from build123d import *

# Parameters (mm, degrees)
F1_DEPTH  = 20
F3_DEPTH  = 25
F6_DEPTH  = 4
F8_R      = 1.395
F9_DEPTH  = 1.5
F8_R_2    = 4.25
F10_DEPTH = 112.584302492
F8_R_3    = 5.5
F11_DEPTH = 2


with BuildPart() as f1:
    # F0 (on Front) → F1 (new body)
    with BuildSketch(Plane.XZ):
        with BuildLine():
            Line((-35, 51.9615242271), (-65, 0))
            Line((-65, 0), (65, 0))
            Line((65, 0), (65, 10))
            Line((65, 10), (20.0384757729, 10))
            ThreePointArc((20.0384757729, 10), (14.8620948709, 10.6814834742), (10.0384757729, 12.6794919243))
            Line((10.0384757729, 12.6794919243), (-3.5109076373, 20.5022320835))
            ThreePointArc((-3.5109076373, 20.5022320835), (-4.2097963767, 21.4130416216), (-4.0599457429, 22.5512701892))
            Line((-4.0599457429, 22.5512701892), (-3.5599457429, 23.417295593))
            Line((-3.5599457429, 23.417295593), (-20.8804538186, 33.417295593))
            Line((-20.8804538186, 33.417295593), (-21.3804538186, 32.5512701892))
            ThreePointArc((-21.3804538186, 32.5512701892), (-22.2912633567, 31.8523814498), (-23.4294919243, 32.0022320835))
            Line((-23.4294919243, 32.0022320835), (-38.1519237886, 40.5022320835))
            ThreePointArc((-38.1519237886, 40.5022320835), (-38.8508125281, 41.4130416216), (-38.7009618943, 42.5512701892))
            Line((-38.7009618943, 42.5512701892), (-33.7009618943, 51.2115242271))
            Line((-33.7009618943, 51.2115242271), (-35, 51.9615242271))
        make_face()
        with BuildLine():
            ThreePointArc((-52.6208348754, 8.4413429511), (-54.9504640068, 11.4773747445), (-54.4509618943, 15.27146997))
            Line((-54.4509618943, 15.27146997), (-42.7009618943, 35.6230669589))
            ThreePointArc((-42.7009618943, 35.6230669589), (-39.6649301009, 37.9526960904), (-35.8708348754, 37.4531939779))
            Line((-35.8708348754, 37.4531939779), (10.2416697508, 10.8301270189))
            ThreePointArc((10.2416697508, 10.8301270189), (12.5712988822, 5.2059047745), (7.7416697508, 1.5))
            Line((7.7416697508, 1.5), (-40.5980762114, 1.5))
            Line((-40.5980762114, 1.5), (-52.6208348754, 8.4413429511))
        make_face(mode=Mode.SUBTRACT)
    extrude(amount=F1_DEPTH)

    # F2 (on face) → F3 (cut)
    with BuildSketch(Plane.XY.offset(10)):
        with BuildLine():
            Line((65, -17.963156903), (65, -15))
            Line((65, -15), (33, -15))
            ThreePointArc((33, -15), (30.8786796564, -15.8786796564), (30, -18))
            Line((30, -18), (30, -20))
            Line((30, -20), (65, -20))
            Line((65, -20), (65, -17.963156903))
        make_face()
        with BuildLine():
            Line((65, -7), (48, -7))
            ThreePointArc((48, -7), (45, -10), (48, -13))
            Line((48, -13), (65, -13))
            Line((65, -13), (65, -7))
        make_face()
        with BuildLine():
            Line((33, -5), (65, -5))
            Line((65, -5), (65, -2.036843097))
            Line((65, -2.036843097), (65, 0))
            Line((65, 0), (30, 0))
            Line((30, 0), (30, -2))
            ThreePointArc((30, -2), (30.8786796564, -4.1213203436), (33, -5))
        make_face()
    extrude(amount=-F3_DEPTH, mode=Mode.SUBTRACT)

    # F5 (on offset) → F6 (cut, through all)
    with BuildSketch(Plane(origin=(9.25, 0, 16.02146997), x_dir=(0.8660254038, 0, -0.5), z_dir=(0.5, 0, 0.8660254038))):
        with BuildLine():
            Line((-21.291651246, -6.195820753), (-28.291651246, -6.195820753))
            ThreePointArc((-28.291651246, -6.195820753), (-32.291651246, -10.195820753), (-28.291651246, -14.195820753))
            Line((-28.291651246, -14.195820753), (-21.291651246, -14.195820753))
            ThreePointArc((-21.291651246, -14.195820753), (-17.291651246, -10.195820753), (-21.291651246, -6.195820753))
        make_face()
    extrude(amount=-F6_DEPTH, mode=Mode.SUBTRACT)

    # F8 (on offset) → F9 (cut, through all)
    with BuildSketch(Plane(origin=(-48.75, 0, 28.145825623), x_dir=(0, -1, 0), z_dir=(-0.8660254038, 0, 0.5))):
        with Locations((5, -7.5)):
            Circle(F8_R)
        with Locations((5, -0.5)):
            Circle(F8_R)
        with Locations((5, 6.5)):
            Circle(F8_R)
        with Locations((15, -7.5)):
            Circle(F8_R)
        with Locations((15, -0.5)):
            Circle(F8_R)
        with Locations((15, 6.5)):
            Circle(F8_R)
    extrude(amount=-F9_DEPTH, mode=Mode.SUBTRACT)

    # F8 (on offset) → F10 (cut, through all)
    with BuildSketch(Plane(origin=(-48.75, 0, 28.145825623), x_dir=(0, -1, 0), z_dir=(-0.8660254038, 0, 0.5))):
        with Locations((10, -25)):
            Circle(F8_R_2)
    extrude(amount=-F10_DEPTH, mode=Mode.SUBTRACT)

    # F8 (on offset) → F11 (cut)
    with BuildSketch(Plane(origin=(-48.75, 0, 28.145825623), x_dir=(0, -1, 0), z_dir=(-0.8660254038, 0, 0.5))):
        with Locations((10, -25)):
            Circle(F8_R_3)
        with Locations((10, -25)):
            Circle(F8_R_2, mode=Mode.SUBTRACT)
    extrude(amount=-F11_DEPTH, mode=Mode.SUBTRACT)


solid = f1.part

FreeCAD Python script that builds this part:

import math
import FreeCAD as App
import Part
import Sketcher
from FreeCAD import Vector
Q = App.Units.Quantity

doc = App.newDocument("Part")
params = doc.addObject("Spreadsheet::Sheet", "Params")
for row, (alias, value) in enumerate([
    ("sketch1_radius", "20 mm"),
    ("sketch1_radius2", "5 mm"),
    ("sketch1_radius3", "1.5 mm"),
    ("sketch1_width", "130 mm"),
    ("sketch1_height", "10 mm"),
    ("pad1_length", "20 mm"),
    ("sketch2_radius", "3 mm"),
    ("sketch2_width", "32 mm"),
    ("sketch2_width2", "17 mm"),
    ("sketch2_height", "2 mm"),
    ("pocket1_length", "25 mm"),
    ("sketch3_radius", "4 mm"),
    ("sketch3_width", "7 mm"),
    ("pocket2_length", "4 mm"),
    ("sketch4_diameter", "2.79 mm"),
    ("pocket3_length", "1.5 mm"),
    ("sketch5_diameter", "8.5 mm"),
    ("sketch6_diameter", "11 mm"),
    ("sketch6_diameter2", "8.5 mm"),
    ("pocket5_length", "2 mm"),
], start=1):
    params.set(f"A{row}", alias)
    params.set(f"B{row}", "=" + value)
    params.setAlias(f"B{row}", alias)

body = doc.addObject("PartDesign::Body", "Body")

# Sketch on XZ plane
sketch1 = body.newObject("Sketcher::SketchObject", "Sketch")
sketch1.AttachmentSupport = (doc.getObject("XZ_Plane"), [""])
sketch1.MapMode = "FlatFace"
sketch1.addGeometry(Part.LineSegment(Vector(-35, 52, 0), Vector(-65, 0, 0)), False)
sketch1.addGeometry(Part.LineSegment(Vector(-65, 0, 0), Vector(65, 0, 0)), False)
sketch1.addGeometry(Part.LineSegment(Vector(65, 0, 0), Vector(65, 10, 0)), False)
sketch1.addGeometry(Part.LineSegment(Vector(65, 10, 0), Vector(20, 10, 0)), False)
sketch1.addGeometry(Part.ArcOfCircle(Part.Circle(Vector(20, 30, 0), Vector(0, 0, 1), 20), math.radians(-120), math.radians(-90)), False)
sketch1.addGeometry(Part.LineSegment(Vector(10, 12.7, 0), Vector(-3.5, 20.5, 0)), False)
sketch1.addGeometry(Part.ArcOfCircle(Part.Circle(Vector(-2.8, 21.8, 0), Vector(0, 0, 1), 1.5), math.radians(150), math.radians(240)), False)
sketch1.addGeometry(Part.LineSegment(Vector(-4.1, 22.6, 0), Vector(-3.6, 23.4, 0)), False)
sketch1.addGeometry(Part.LineSegment(Vector(-3.6, 23.4, 0), Vector(-20.9, 33.4, 0)), False)
sketch1.addGeometry(Part.LineSegment(Vector(-20.9, 33.4, 0), Vector(-21.4, 32.6, 0)), False)
sketch1.addGeometry(Part.ArcOfCircle(Part.Circle(Vector(-22.7, 33.3, 0), Vector(0, 0, 1), 1.5), math.radians(-120), math.radians(-30)), False)
sketch1.addGeometry(Part.LineSegment(Vector(-23.4, 32, 0), Vector(-38.2, 40.5, 0)), False)
sketch1.addGeometry(Part.ArcOfCircle(Part.Circle(Vector(-37.4, 41.8, 0), Vector(0, 0, 1), 1.5), math.radians(150), math.radians(240)), False)
sketch1.addGeometry(Part.LineSegment(Vector(-38.7, 42.6, 0), Vector(-33.7, 51.2, 0)), False)
sketch1.addGeometry(Part.LineSegment(Vector(-33.7, 51.2, 0), Vector(-35, 52, 0)), False)
sketch1.addGeometry(Part.LineSegment(Vector(-40.6, 1.5, 0), Vector(-52.6, 8.4, 0)), False)
sketch1.addGeometry(Part.ArcOfCircle(Part.Circle(Vector(-50.1, 12.8, 0), Vector(0, 0, 1), 5), math.radians(150), math.radians(240)), False)
sketch1.addGeometry(Part.LineSegment(Vector(-54.5, 15.3, 0), Vector(-42.7, 35.6, 0)), False)
sketch1.addGeometry(Part.ArcOfCircle(Part.Circle(Vector(-38.4, 33.1, 0), Vector(0, 0, 1), 5), math.radians(60), math.radians(150)), False)
sketch1.addGeometry(Part.LineSegment(Vector(-35.9, 37.5, 0), Vector(10.2, 10.8, 0)), False)
sketch1.addGeometry(Part.ArcOfCircle(Part.Circle(Vector(7.7, 6.5, 0), Vector(0, 0, 1), 5), math.radians(-90), math.radians(60)), False)
sketch1.addGeometry(Part.LineSegment(Vector(7.7, 1.5, 0), Vector(-40.6, 1.5, 0)), False)
sketch1.addConstraint(Sketcher.Constraint("Coincident", 0, 2, 1, 1))
sketch1.addConstraint(Sketcher.Constraint("Coincident", 1, 2, 2, 1))
sketch1.addConstraint(Sketcher.Constraint("Coincident", 2, 2, 3, 1))
sketch1.addConstraint(Sketcher.Constraint("Tangent", 3, 2, 4, 2))
sketch1.addConstraint(Sketcher.Constraint("Tangent", 4, 1, 5, 1))
sketch1.addConstraint(Sketcher.Constraint("Tangent", 5, 2, 6, 2))
sketch1.addConstraint(Sketcher.Constraint("Tangent", 6, 1, 7, 1))
sketch1.addConstraint(Sketcher.Constraint("Coincident", 7, 2, 8, 1))
sketch1.addConstraint(Sketcher.Constraint("Coincident", 8, 2, 9, 1))
sketch1.addConstraint(Sketcher.Constraint("Tangent", 9, 2, 10, 2))
sketch1.addConstraint(Sketcher.Constraint("Tangent", 10, 1, 11, 1))
sketch1.addConstraint(Sketcher.Constraint("Tangent", 11, 2, 12, 2))
sketch1.addConstraint(Sketcher.Constraint("Tangent", 12, 1, 13, 1))
sketch1.addConstraint(Sketcher.Constraint("Coincident", 13, 2, 14, 1))
sketch1.addConstraint(Sketcher.Constraint("Coincident", 14, 2, 0, 1))
sketch1.addConstraint(Sketcher.Constraint("Tangent", 15, 2, 16, 2))
sketch1.addConstraint(Sketcher.Constraint("Tangent", 16, 1, 17, 1))
sketch1.addConstraint(Sketcher.Constraint("Tangent", 17, 2, 18, 2))
sketch1.addConstraint(Sketcher.Constraint("Tangent", 18, 1, 19, 1))
sketch1.addConstraint(Sketcher.Constraint("Tangent", 19, 2, 20, 2))
sketch1.addConstraint(Sketcher.Constraint("Tangent", 20, 1, 21, 1))
sketch1.addConstraint(Sketcher.Constraint("Coincident", 21, 2, 15, 1))
sketch1.addConstraint(Sketcher.Constraint("Horizontal", 1))
sketch1.addConstraint(Sketcher.Constraint("Vertical", 2))
sketch1.addConstraint(Sketcher.Constraint("Horizontal", 3))
sketch1.addConstraint(Sketcher.Constraint("Horizontal", 21))
sketch1.addConstraint(Sketcher.Constraint("Equal", 6, 10))
sketch1.addConstraint(Sketcher.Constraint("Equal", 10, 12))
sketch1.addConstraint(Sketcher.Constraint("Equal", 16, 18))
sketch1.addConstraint(Sketcher.Constraint("Equal", 18, 20))
sketch1.addConstraint(Sketcher.Constraint("Symmetric", 0, 2, 1, 2, -1, 1))
sketch1.addConstraint(Sketcher.Constraint("Perpendicular", 0, 5))
sketch1.addConstraint(Sketcher.Constraint("Perpendicular", 5, 7))
sketch1.addConstraint(Sketcher.Constraint("Perpendicular", 7, 8))
sketch1.addConstraint(Sketcher.Constraint("Perpendicular", 8, 9))
sketch1.addConstraint(Sketcher.Constraint("Perpendicular", 9, 11))
sketch1.addConstraint(Sketcher.Constraint("Perpendicular", 11, 13))
sketch1.addConstraint(Sketcher.Constraint("Perpendicular", 13, 14))
sketch1.addConstraint(Sketcher.Constraint("Parallel", 14, 15))
sketch1.addConstraint(Sketcher.Constraint("Perpendicular", 15, 17))
sketch1.addConstraint(Sketcher.Constraint("Perpendicular", 17, 19))
sketch1.addConstraint(Sketcher.Constraint("Equal", 7, 9))
sketch1.addConstraint(Sketcher.Constraint("Radius", 4, Q("20 mm")))
sketch1.addConstraint(Sketcher.Constraint("Radius", 16, Q("5 mm")))
sketch1.addConstraint(Sketcher.Constraint("Radius", 6, Q("1.5 mm")))
sketch1.addConstraint(Sketcher.Constraint("DistanceX", 1, 1, 1, 2, Q("130 mm")))
sketch1.addConstraint(Sketcher.Constraint("DistanceY", 2, 1, 2, 2, Q("10 mm")))
sketch1.addConstraint(Sketcher.Constraint("Angle", 0, Q("-120 deg")))
sketch1.addConstraint(Sketcher.Constraint("Distance", 0, Q("60 mm")))
sketch1.addConstraint(Sketcher.Constraint("Distance", 7, Q("1 mm")))
sketch1.addConstraint(Sketcher.Constraint("Distance", 8, Q("20 mm")))
sketch1.addConstraint(Sketcher.Constraint("Distance", 11, Q("17 mm")))
sketch1.addConstraint(Sketcher.Constraint("Distance", 13, Q("10 mm")))
sketch1.addConstraint(Sketcher.Constraint("DistanceX", 17, 2, 12, 1, Q("4 mm")))
sketch1.addConstraint(Sketcher.Constraint("Distance", 14, Q("1.5 mm")))
sketch1.addConstraint(Sketcher.Constraint("Distance", 17, Q("23.5 mm")))
sketch1.addConstraint(Sketcher.Constraint("DistanceY", -1, 1, 20, 3, Q("6.5 mm")))
sketch1.addConstraint(Sketcher.Constraint("DistanceY", 16, 3, 12, 3, Q("29.0298 mm")))
sketch1.setExpression("Constraints[42]", "Params.sketch1_radius")
sketch1.setExpression("Constraints[43]", "Params.sketch1_radius2")
sketch1.setExpression("Constraints[44]", "Params.sketch1_radius3")
sketch1.setExpression("Constraints[45]", "Params.sketch1_width")
sketch1.setExpression("Constraints[46]", "Params.sketch1_height")
pad1 = body.newObject("PartDesign::Pad", "Pad")
pad1.Profile = sketch1
pad1.setExpression("Length", "Params.pad1_length")

# Sketch on XY plane
sketch2 = body.newObject("Sketcher::SketchObject", "Sketch001")
sketch2.AttachmentSupport = (doc.getObject("XY_Plane"), [""])
sketch2.MapMode = "FlatFace"
sketch2.AttachmentOffset = App.Placement(Vector(0, 0, 10), App.Rotation())
sketch2.addGeometry(Part.LineSegment(Vector(65, -15, 0), Vector(33, -15, 0)), False)
sketch2.addGeometry(Part.ArcOfCircle(Part.Circle(Vector(33, -18, 0), Vector(0, 0, 1), 3), math.radians(90), math.radians(180)), False)
sketch2.addGeometry(Part.LineSegment(Vector(30, -18, 0), Vector(30, -20, 0)), False)
sketch2.addGeometry(Part.LineSegment(Vector(30, -20, 0), Vector(65, -20, 0)), False)
sketch2.addGeometry(Part.LineSegment(Vector(65, -20, 0), Vector(65, -15, 0)), False)
sketch2.addGeometry(Part.LineSegment(Vector(65, -7, 0), Vector(48, -7, 0)), False)
sketch2.addGeometry(Part.ArcOfCircle(Part.Circle(Vector(48, -10, 0), Vector(0, 0, 1), 3), math.radians(90), math.radians(270)), False)
sketch2.addGeometry(Part.LineSegment(Vector(48, -13, 0), Vector(65, -13, 0)), False)
sketch2.addGeometry(Part.LineSegment(Vector(65, -13, 0), Vector(65, -7, 0)), False)
sketch2.addGeometry(Part.LineSegment(Vector(33, -5, 0), Vector(65, -5, 0)), False)
sketch2.addGeometry(Part.LineSegment(Vector(65, -5, 0), Vector(65, 0, 0)), False)
sketch2.addGeometry(Part.LineSegment(Vector(65, 0, 0), Vector(30, 0, 0)), False)
sketch2.addGeometry(Part.LineSegment(Vector(30, 0, 0), Vector(30, -2, 0)), False)
sketch2.addGeometry(Part.ArcOfCircle(Part.Circle(Vector(33, -2, 0), Vector(0, 0, 1), 3), math.radians(180), math.radians(270)), False)
sketch2.addConstraint(Sketcher.Constraint("Tangent", 0, 2, 1, 1))
sketch2.addConstraint(Sketcher.Constraint("Tangent", 1, 2, 2, 1))
sketch2.addConstraint(Sketcher.Constraint("Coincident", 2, 2, 3, 1))
sketch2.addConstraint(Sketcher.Constraint("Coincident", 3, 2, 4, 1))
sketch2.addConstraint(Sketcher.Constraint("Coincident", 4, 2, 0, 1))
sketch2.addConstraint(Sketcher.Constraint("Tangent", 5, 2, 6, 1))
sketch2.addConstraint(Sketcher.Constraint("Tangent", 6, 2, 7, 1))
sketch2.addConstraint(Sketcher.Constraint("Coincident", 7, 2, 8, 1))
sketch2.addConstraint(Sketcher.Constraint("Coincident", 8, 2, 5, 1))
sketch2.addConstraint(Sketcher.Constraint("Coincident", 9, 2, 10, 1))
sketch2.addConstraint(Sketcher.Constraint("Coincident", 10, 2, 11, 1))
sketch2.addConstraint(Sketcher.Constraint("Coincident", 11, 2, 12, 1))
sketch2.addConstraint(Sketcher.Constraint("Tangent", 12, 2, 13, 1))
sketch2.addConstraint(Sketcher.Constraint("Tangent", 13, 2, 9, 1))
sketch2.addConstraint(Sketcher.Constraint("Horizontal", 0))
sketch2.addConstraint(Sketcher.Constraint("Vertical", 2))
sketch2.addConstraint(Sketcher.Constraint("Horizontal", 3))
sketch2.addConstraint(Sketcher.Constraint("Vertical", 4))
sketch2.addConstraint(Sketcher.Constraint("Horizontal", 5))
sketch2.addConstraint(Sketcher.Constraint("Horizontal", 7))
sketch2.addConstraint(Sketcher.Constraint("Vertical", 8))
sketch2.addConstraint(Sketcher.Constraint("Horizontal", 9))
sketch2.addConstraint(Sketcher.Constraint("Vertical", 10))
sketch2.addConstraint(Sketcher.Constraint("Horizontal", 11))
sketch2.addConstraint(Sketcher.Constraint("Vertical", 12))
sketch2.addConstraint(Sketcher.Constraint("Equal", 1, 6))
sketch2.addConstraint(Sketcher.Constraint("Equal", 6, 13))
sketch2.addConstraint(Sketcher.Constraint("PointOnObject", 10, 2, -1))
sketch2.addConstraint(Sketcher.Constraint("Vertical", 1, 3, 13, 3))
sketch2.addConstraint(Sketcher.Constraint("Vertical", 4, 2, 7, 2))
sketch2.addConstraint(Sketcher.Constraint("Vertical", 8, 2, 9, 2))
sketch2.addConstraint(Sketcher.Constraint("Equal", 4, 10))
sketch2.addConstraint(Sketcher.Constraint("Radius", 1, Q("3 mm")))
sketch2.addConstraint(Sketcher.Constraint("DistanceX", 0, 2, 0, 1, Q("32 mm")))
sketch2.addConstraint(Sketcher.Constraint("DistanceX", 5, 2, 5, 1, Q("17 mm")))
sketch2.addConstraint(Sketcher.Constraint("DistanceY", 2, 2, 2, 1, Q("2 mm")))
sketch2.addConstraint(Sketcher.Constraint("DistanceX", -1, 1, 1, 3, Q("33 mm")))
sketch2.addConstraint(Sketcher.Constraint("DistanceY", 1, 3, -1, 1, Q("18 mm")))
sketch2.addConstraint(Sketcher.Constraint("DistanceY", 6, 3, -1, 1, Q("10 mm")))
sketch2.setExpression("Constraints[32]", "Params.sketch2_radius")
sketch2.setExpression("Constraints[33]", "Params.sketch2_width")
sketch2.setExpression("Constraints[34]", "Params.sketch2_width2")
sketch2.setExpression("Constraints[35]", "Params.sketch2_height")
pocket1 = body.newObject("PartDesign::Pocket", "Pocket")
pocket1.Profile = sketch2
pocket1.setExpression("Length", "Params.pocket1_length")

# Sketch on an angled plane
sketch3 = body.newObject("Sketcher::SketchObject", "Sketch002")
sketch3.Placement = App.Placement(Vector(9.25, 0, 16.02147), App.Rotation(Vector(0.866025404, 0, -0.5), Vector(0, 1, 0), Vector(0.5, 0, 0.866025404), "ZXY"))
sketch3.addGeometry(Part.LineSegment(Vector(-21.3, -6.2, 0), Vector(-28.3, -6.2, 0)), False)
sketch3.addGeometry(Part.ArcOfCircle(Part.Circle(Vector(-28.3, -10.2, 0), Vector(0, 0, 1), 4), math.radians(90), math.radians(270)), False)
sketch3.addGeometry(Part.LineSegment(Vector(-28.3, -14.2, 0), Vector(-21.3, -14.2, 0)), False)
sketch3.addGeometry(Part.ArcOfCircle(Part.Circle(Vector(-21.3, -10.2, 0), Vector(0, 0, 1), 4), math.radians(-90), math.radians(90)), False)
sketch3.addConstraint(Sketcher.Constraint("Tangent", 0, 2, 1, 1))
sketch3.addConstraint(Sketcher.Constraint("Tangent", 1, 2, 2, 1))
sketch3.addConstraint(Sketcher.Constraint("Tangent", 2, 2, 3, 1))
sketch3.addConstraint(Sketcher.Constraint("Tangent", 3, 2, 0, 1))
sketch3.addConstraint(Sketcher.Constraint("Horizontal", 0))
sketch3.addConstraint(Sketcher.Constraint("Horizontal", 2))
sketch3.addConstraint(Sketcher.Constraint("Radius", 1, Q("4 mm")))
sketch3.addConstraint(Sketcher.Constraint("DistanceX", 0, 2, 0, 1, Q("7 mm")))
sketch3.addConstraint(Sketcher.Constraint("DistanceX", 1, 3, -1, 1, Q("28.291651 mm")))
sketch3.addConstraint(Sketcher.Constraint("DistanceY", 1, 3, -1, 1, Q("10.195821 mm")))
sketch3.setExpression("Constraints[6]", "Params.sketch3_radius")
sketch3.setExpression("Constraints[7]", "Params.sketch3_width")
pocket2 = body.newObject("PartDesign::Pocket", "Pocket001")
pocket2.Profile = sketch3
pocket2.setExpression("Length", "Params.pocket2_length")

# Sketch on an angled plane
sketch4 = body.newObject("Sketcher::SketchObject", "Sketch003")
sketch4.Placement = App.Placement(Vector(-48.75, 0, 28.145826), App.Rotation(Vector(0, -1, 0), Vector(0.5, 0, 0.866025404), Vector(-0.866025404, 0, 0.5), "ZXY"))
sketch4.addGeometry(Part.Circle(Vector(5, -7.5, 0), Vector(0, 0, 1), 1.4), False)
sketch4.addGeometry(Part.Circle(Vector(5, -0.5, 0), Vector(0, 0, 1), 1.4), False)
sketch4.addGeometry(Part.Circle(Vector(5, 6.5, 0), Vector(0, 0, 1), 1.4), False)
sketch4.addGeometry(Part.Circle(Vector(15, -7.5, 0), Vector(0, 0, 1), 1.4), False)
sketch4.addGeometry(Part.Circle(Vector(15, -0.5, 0), Vector(0, 0, 1), 1.4), False)
sketch4.addGeometry(Part.Circle(Vector(15, 6.5, 0), Vector(0, 0, 1), 1.4), False)
sketch4.addConstraint(Sketcher.Constraint("Equal", 0, 1))
sketch4.addConstraint(Sketcher.Constraint("Equal", 1, 2))
sketch4.addConstraint(Sketcher.Constraint("Equal", 2, 3))
sketch4.addConstraint(Sketcher.Constraint("Equal", 3, 4))
sketch4.addConstraint(Sketcher.Constraint("Equal", 4, 5))
sketch4.addConstraint(Sketcher.Constraint("Horizontal", 0, 3, 3, 3))
sketch4.addConstraint(Sketcher.Constraint("Horizontal", 1, 3, 4, 3))
sketch4.addConstraint(Sketcher.Constraint("Horizontal", 2, 3, 5, 3))
sketch4.addConstraint(Sketcher.Constraint("Vertical", 0, 3, 1, 3))
sketch4.addConstraint(Sketcher.Constraint("Vertical", 1, 3, 2, 3))
sketch4.addConstraint(Sketcher.Constraint("Vertical", 3, 3, 4, 3))
sketch4.addConstraint(Sketcher.Constraint("Vertical", 4, 3, 5, 3))
sketch4.addConstraint(Sketcher.Constraint("Diameter", 0, Q("2.79 mm")))
sketch4.addConstraint(Sketcher.Constraint("DistanceX", -1, 1, 0, 3, Q("5 mm")))
sketch4.addConstraint(Sketcher.Constraint("DistanceX", -1, 1, 3, 3, Q("15 mm")))
sketch4.addConstraint(Sketcher.Constraint("DistanceY", 0, 3, 1, 3, Q("7 mm")))
sketch4.addConstraint(Sketcher.Constraint("DistanceY", 1, 3, 2, 3, Q("7 mm")))
sketch4.addConstraint(Sketcher.Constraint("DistanceY", 0, 3, -1, 1, Q("7.5 mm")))
sketch4.setExpression("Constraints[12]", "Params.sketch4_diameter")
pocket3 = body.newObject("PartDesign::Pocket", "Pocket002")
pocket3.Profile = sketch4
pocket3.setExpression("Length", "Params.pocket3_length")

# Sketch on an angled plane
sketch5 = body.newObject("Sketcher::SketchObject", "Sketch004")
sketch5.Placement = App.Placement(Vector(-48.75, 0, 28.145826), App.Rotation(Vector(0, -1, 0), Vector(0.5, 0, 0.866025404), Vector(-0.866025404, 0, 0.5), "ZXY"))
sketch5.addGeometry(Part.Circle(Vector(10, -25, 0), Vector(0, 0, 1), 4.2), False)
sketch5.addConstraint(Sketcher.Constraint("Diameter", 0, Q("8.5 mm")))
sketch5.addConstraint(Sketcher.Constraint("DistanceX", -1, 1, 0, 3, Q("10 mm")))
sketch5.addConstraint(Sketcher.Constraint("DistanceY", 0, 3, -1, 1, Q("25 mm")))
sketch5.setExpression("Constraints[0]", "Params.sketch5_diameter")
pocket4 = body.newObject("PartDesign::Pocket", "Pocket003")
pocket4.Profile = sketch5
pocket4.Type = "ThroughAll"

# Sketch on an angled plane
sketch6 = body.newObject("Sketcher::SketchObject", "Sketch005")
sketch6.Placement = App.Placement(Vector(-48.75, 0, 28.145826), App.Rotation(Vector(0, -1, 0), Vector(0.5, 0, 0.866025404), Vector(-0.866025404, 0, 0.5), "ZXY"))
sketch6.addGeometry(Part.Circle(Vector(10, -25, 0), Vector(0, 0, 1), 5.5), False)
sketch6.addGeometry(Part.Circle(Vector(10, -25, 0), Vector(0, 0, 1), 4.2), False)
sketch6.addConstraint(Sketcher.Constraint("Coincident", 1, 3, 0, 3))
sketch6.addConstraint(Sketcher.Constraint("Diameter", 0, Q("11 mm")))
sketch6.addConstraint(Sketcher.Constraint("Diameter", 1, Q("8.5 mm")))
sketch6.addConstraint(Sketcher.Constraint("DistanceX", -1, 1, 0, 3, Q("10 mm")))
sketch6.addConstraint(Sketcher.Constraint("DistanceY", 0, 3, -1, 1, Q("25 mm")))
sketch6.setExpression("Constraints[1]", "Params.sketch6_diameter")
sketch6.setExpression("Constraints[2]", "Params.sketch6_diameter2")
pocket5 = body.newObject("PartDesign::Pocket", "Pocket004")
pocket5.Profile = sketch6
pocket5.setExpression("Length", "Params.pocket5_length")

doc.recompute()
